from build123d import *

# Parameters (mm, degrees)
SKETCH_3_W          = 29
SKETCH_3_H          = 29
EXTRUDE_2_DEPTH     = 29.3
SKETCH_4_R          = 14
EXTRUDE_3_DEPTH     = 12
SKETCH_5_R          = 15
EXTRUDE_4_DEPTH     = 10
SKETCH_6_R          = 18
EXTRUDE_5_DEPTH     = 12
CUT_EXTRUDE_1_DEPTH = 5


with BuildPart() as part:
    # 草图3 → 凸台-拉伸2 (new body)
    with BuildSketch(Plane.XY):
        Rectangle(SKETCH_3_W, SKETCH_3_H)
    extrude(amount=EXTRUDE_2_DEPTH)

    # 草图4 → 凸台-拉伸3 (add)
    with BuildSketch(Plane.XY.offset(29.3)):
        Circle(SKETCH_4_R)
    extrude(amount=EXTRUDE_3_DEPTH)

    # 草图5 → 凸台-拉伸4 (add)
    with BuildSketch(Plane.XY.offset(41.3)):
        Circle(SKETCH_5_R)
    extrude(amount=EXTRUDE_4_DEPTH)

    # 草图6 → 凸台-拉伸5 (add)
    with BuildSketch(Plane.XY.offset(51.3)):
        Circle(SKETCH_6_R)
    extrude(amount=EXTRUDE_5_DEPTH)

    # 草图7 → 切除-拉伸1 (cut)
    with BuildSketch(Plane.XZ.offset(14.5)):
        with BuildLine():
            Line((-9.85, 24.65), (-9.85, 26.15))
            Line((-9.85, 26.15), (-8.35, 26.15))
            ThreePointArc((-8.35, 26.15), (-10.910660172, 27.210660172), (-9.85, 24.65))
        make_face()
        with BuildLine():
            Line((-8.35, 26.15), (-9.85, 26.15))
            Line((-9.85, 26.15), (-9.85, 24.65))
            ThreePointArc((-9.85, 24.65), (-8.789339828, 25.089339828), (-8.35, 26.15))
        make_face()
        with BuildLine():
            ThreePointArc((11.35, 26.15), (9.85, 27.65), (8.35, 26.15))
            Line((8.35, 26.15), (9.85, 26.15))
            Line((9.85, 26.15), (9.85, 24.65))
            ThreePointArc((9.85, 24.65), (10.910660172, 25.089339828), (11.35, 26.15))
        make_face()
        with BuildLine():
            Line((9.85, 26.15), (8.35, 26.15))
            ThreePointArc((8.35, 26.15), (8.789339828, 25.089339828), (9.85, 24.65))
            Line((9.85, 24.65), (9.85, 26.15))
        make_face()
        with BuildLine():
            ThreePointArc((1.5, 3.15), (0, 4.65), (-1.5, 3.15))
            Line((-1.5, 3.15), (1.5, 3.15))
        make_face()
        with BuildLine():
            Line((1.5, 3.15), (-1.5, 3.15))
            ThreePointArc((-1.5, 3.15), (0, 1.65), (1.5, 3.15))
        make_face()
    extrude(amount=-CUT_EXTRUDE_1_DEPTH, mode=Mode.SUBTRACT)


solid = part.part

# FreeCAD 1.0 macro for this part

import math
import FreeCAD as App
import Part
import Sketcher

V = App.Vector
Q = App.Units.Quantity

doc = App.newDocument("Part")
body = doc.addObject("PartDesign::Body", "Body")

# Sketch on XY plane
sketch1 = body.newObject("Sketcher::SketchObject", "Sketch")
sketch1.AttachmentSupport = (doc.getObject("XY_Plane"), [""])
sketch1.MapMode = "FlatFace"
sketch1.addGeometry(Part.LineSegment(V(-14.5, 14.5, 0), V(-14.5, -14.5, 0)), False)
sketch1.addGeometry(Part.LineSegment(V(-14.5, -14.5, 0), V(14.5, -14.5, 0)), False)
sketch1.addGeometry(Part.LineSegment(V(14.5, -14.5, 0), V(14.5, 14.5, 0)), False)
sketch1.addGeometry(Part.LineSegment(V(14.5, 14.5, 0), V(-14.5, 14.5, 0)), False)
sketch1.addConstraint(Sketcher.Constraint("Coincident", 0, 2, 1, 1))
sketch1.addConstraint(Sketcher.Constraint("Coincident", 1, 2, 2, 1))
sketch1.addConstraint(Sketcher.Constraint("Coincident", 2, 2, 3, 1))
sketch1.addConstraint(Sketcher.Constraint("Coincident", 3, 2, 0, 1))
sketch1.addConstraint(Sketcher.Constraint("Vertical", 0))
sketch1.addConstraint(Sketcher.Constraint("Horizontal", 1))
sketch1.addConstraint(Sketcher.Constraint("Vertical", 2))
sketch1.addConstraint(Sketcher.Constraint("Horizontal", 3))
sketch1.addConstraint(Sketcher.Constraint("Symmetric", 0, 2, 2, 2, -1, 1))
sketch1.addConstraint(Sketcher.Constraint("Equal", 3, 0))
sketch1.addConstraint(Sketcher.Constraint("DistanceX", 1, 1, 1, 2, Q("29 mm")))
pad1 = body.newObject("PartDesign::Pad", "Pad")
pad1.Profile = sketch1
pad1.Length = 29.3

# Sketch on XY plane
sketch2 = body.newObject("Sketcher::SketchObject", "Sketch001")
sketch2.AttachmentSupport = (doc.getObject("XY_Plane"), [""])
sketch2.MapMode = "FlatFace"
sketch2.AttachmentOffset = App.Placement(V(0, 0, 29.3), App.Rotation())
sketch2.addGeometry(Part.Circle(V(0, 0, 0), V(0, 0, 1), 14), False)
sketch2.addConstraint(Sketcher.Constraint("Coincident", 0, 3, -1, 1))
sketch2.addConstraint(Sketcher.Constraint("Diameter", 0, Q("28 mm")))
pad2 = body.newObject("PartDesign::Pad", "Pad001")
pad2.Profile = sketch2
pad2.Length = 12

# Sketch on XY plane
sketch3 = body.newObject("Sketcher::SketchObject", "Sketch002")
sketch3.AttachmentSupport = (doc.getObject("XY_Plane"), [""])
sketch3.MapMode = "FlatFace"
sketch3.AttachmentOffset = App.Placement(V(0, 0, 41.3), App.Rotation())
sketch3.addGeometry(Part.Circle(V(0, 0, 0), V(0, 0, 1), 15), False)
sketch3.addConstraint(Sketcher.Constraint("Coincident", 0, 3, -1, 1))
sketch3.addConstraint(Sketcher.Constraint("Diameter", 0, Q("30 mm")))
pad3 = body.newObject("PartDesign::Pad", "Pad002")
pad3.Profile = sketch3
pad3.Length = 10

# Sketch on XY plane
sketch4 = body.newObject("Sketcher::SketchObject", "Sketch003")
sketch4.AttachmentSupport = (doc.getObject("XY_Plane"), [""])
sketch4.MapMode = "FlatFace"
sketch4.AttachmentOffset = App.Placement(V(0, 0, 51.3), App.Rotation())
sketch4.addGeometry(Part.Circle(V(0, 0, 0), V(0, 0, 1), 18), False)
sketch4.addConstraint(Sketcher.Constraint("Coincident", 0, 3, -1, 1))
sketch4.addConstraint(Sketcher.Constraint("Diameter", 0, Q("36 mm")))
pad4 = body.newObject("PartDesign::Pad", "Pad003")
pad4.Profile = sketch4
pad4.Length = 12

# Sketch on XZ plane
sketch5 = body.newObject("Sketcher::SketchObject", "Sketch004")
sketch5.AttachmentSupport = (doc.getObject("XZ_Plane"), [""])
sketch5.MapMode = "FlatFace"
sketch5.AttachmentOffset = App.Placement(V(0, 0, 14.5), App.Rotation())
sketch5.addGeometry(Part.ArcOfCircle(Part.Circle(V(-9.85, 26.15, 0), V(0, 0, 1), 1.5), math.radians(0), math.radians(270)), False)
sketch5.addGeometry(Part.ArcOfCircle(Part.Circle(V(-9.85, 26.15, 0), V(0, 0, 1), 1.5), math.radians(-90), math.radians(0)), False)
sketch5.addGeometry(Part.ArcOfCircle(Part.Circle(V(9.85, 26.15, 0), V(0, 0, 1), 1.5), math.radians(0), math.radians(180)), False)
sketch5.addGeometry(Part.ArcOfCircle(Part.Circle(V(9.85, 26.15, 0), V(0, 0, 1), 1.5), math.radians(180), math.radians(270)), False)
sketch5.addGeometry(Part.ArcOfCircle(Part.Circle(V(9.85, 26.15, 0), V(0, 0, 1), 1.5), math.radians(-90), math.radians(0)), False)
sketch5.addGeometry(Part.Circle(V(0, 3.15, 0), V(0, 0, 1), 1.5), False)
sketch5.addConstraint(Sketcher.Constraint("Tangent", 0, 1, 1, 2))
sketch5.addConstraint(Sketcher.Constraint("Coincident", 1, 1, 0, 2))
sketch5.addConstraint(Sketcher.Constraint("Tangent", 2, 2, 3, 1))
sketch5.addConstraint(Sketcher.Constraint("Tangent", 3, 2, 4, 1))
sketch5.addConstraint(Sketcher.Constraint("Tangent", 4, 2, 2, 1))
sketch5.addConstraint(Sketcher.Constraint("Equal", 1, 2))
sketch5.addConstraint(Sketcher.Constraint("Equal", 4, 5))
sketch5.addConstraint(Sketcher.Constraint("Symmetric", 0, 3, 2, 3, -2))
sketch5.addConstraint(Sketcher.Constraint("PointOnObject", 5, 3, -2))
sketch5.addConstraint(Sketcher.Constraint("Horizontal", 4, 3, 0, 1))
sketch5.addConstraint(Sketcher.Constraint("Horizontal", 0, 1, 2, 2))
sketch5.addConstraint(Sketcher.Constraint("Horizontal", 2, 2, 4, 2))
sketch5.addConstraint(Sketcher.Constraint("Vertical", 0, 3, 1, 1))
sketch5.addConstraint(Sketcher.Constraint("Vertical", 4, 3, 3, 2))
sketch5.addConstraint(Sketcher.Constraint("Diameter", 5, Q("3 mm")))
sketch5.addConstraint(Sketcher.Constraint("DistanceY", 5, 3, 1, 3, Q("23 mm")))
sketch5.addConstraint(Sketcher.Constraint("DistanceX", 1, 3, 2, 3, Q("19.7 mm")))
sketch5.addConstraint(Sketcher.Constraint("DistanceY", -1, 1, 0, 3, Q("26.15 mm")))
pocket1 = body.newObject("PartDesign::Pocket", "Pocket")
pocket1.Profile = sketch5
pocket1.Length = 5

doc.recompute()
